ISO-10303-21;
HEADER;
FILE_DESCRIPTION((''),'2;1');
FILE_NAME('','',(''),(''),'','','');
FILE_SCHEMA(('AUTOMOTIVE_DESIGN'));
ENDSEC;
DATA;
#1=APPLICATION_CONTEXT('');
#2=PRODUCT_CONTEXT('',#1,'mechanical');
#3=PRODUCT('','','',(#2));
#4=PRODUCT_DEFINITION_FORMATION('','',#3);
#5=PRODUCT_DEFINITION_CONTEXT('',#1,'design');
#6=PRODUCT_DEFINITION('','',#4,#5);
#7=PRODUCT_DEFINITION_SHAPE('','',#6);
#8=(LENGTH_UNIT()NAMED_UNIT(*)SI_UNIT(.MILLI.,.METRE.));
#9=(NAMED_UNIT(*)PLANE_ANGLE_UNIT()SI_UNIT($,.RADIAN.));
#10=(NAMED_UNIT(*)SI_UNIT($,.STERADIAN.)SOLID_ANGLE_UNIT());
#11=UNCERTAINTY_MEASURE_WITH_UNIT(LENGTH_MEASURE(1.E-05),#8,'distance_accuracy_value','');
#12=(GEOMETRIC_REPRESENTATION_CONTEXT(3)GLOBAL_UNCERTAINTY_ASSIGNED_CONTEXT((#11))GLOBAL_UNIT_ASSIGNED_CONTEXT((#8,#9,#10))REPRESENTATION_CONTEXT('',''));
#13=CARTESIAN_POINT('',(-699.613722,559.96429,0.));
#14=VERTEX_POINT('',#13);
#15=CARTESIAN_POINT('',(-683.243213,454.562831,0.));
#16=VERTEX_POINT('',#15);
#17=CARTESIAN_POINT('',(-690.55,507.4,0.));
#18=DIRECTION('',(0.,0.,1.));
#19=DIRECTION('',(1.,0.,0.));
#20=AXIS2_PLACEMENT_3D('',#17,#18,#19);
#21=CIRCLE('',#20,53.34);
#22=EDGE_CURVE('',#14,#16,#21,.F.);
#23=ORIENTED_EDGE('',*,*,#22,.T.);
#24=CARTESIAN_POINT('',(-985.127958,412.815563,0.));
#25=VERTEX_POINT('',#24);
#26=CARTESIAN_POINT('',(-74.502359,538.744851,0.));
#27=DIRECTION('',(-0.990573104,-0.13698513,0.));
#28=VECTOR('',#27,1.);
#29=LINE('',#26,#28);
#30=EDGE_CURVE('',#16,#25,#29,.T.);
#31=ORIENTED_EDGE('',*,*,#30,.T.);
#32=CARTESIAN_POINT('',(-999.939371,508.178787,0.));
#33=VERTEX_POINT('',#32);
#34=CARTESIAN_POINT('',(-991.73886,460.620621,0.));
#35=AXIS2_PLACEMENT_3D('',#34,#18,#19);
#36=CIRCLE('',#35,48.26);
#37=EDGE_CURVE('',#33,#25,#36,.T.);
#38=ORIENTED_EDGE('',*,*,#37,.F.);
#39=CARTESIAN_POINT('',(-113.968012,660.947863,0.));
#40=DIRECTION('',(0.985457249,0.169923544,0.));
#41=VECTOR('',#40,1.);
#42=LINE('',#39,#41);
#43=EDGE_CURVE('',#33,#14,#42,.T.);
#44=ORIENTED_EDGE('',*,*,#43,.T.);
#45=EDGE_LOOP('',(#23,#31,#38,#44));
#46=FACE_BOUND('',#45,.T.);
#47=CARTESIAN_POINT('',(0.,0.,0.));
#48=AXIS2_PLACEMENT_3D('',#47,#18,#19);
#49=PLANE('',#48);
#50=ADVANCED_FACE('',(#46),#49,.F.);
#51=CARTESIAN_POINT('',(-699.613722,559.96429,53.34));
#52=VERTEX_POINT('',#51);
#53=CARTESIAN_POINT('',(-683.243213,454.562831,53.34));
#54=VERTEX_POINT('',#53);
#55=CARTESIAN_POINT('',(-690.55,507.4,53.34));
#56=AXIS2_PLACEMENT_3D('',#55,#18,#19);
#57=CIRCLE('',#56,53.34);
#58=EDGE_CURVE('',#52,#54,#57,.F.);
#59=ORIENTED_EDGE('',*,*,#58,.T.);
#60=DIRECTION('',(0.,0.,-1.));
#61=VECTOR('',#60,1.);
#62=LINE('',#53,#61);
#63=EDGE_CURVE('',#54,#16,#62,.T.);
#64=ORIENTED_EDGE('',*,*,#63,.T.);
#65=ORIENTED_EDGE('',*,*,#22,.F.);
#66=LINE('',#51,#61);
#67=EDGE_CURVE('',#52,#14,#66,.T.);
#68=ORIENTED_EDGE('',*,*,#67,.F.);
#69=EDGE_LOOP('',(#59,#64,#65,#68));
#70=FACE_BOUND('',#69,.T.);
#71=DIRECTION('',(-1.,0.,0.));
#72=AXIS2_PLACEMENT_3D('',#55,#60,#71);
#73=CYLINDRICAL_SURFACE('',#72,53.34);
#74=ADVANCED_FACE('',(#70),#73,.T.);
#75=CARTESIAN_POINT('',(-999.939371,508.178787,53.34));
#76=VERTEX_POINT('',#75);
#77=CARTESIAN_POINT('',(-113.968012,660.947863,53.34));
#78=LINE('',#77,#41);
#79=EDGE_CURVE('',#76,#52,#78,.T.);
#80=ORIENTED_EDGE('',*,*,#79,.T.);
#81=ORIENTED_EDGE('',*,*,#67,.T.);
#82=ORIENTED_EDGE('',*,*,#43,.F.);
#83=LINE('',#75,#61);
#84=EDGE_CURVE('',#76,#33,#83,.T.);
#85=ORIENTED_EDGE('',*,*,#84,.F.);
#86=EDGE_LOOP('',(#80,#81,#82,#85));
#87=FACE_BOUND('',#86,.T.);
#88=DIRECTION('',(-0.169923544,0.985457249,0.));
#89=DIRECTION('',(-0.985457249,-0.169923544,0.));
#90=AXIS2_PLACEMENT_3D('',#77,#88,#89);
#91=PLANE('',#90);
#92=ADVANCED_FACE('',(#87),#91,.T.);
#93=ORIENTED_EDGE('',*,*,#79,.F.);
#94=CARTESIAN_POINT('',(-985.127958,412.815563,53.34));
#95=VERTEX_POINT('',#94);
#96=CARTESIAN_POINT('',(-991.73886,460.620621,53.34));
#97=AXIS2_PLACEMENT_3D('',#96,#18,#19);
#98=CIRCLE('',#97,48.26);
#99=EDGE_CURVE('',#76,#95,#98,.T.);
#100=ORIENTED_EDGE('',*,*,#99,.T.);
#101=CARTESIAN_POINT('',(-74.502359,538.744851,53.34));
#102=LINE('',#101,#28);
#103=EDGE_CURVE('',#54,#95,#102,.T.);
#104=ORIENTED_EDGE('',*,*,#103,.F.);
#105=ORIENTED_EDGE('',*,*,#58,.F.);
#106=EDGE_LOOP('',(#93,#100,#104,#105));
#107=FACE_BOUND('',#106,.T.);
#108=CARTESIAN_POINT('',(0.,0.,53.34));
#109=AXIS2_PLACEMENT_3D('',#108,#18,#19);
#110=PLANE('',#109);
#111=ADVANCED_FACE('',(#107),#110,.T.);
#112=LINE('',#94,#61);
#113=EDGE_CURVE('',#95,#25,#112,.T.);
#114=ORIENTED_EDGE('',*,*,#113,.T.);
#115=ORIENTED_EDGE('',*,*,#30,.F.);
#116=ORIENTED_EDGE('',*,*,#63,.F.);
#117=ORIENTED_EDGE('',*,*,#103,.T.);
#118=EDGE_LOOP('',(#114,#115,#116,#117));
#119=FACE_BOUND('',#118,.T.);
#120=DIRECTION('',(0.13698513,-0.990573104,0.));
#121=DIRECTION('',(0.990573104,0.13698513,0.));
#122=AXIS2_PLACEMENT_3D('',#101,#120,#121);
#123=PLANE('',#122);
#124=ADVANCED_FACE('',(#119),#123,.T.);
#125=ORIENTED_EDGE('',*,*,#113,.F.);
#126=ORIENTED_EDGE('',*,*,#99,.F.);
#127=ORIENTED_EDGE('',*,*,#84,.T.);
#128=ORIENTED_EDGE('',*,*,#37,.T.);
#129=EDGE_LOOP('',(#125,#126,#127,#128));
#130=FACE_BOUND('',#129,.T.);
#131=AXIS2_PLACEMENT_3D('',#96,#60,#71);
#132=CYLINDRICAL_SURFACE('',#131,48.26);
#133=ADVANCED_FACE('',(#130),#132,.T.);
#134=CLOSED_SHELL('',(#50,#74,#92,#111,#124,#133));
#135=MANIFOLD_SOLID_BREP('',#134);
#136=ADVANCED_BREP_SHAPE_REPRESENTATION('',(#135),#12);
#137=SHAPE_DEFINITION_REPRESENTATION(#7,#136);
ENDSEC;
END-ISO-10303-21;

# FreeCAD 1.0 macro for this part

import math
import FreeCAD as App
import Part
import Sketcher
from FreeCAD import Vector
Q = App.Units.Quantity

doc = App.newDocument("Part")
params = doc.addObject("Spreadsheet::Sheet", "Params")
for row, (alias, value) in enumerate([
    ("sketch1_radius", "1.9 in"),
    ("sketch1_radius2", "2.1 in"),
    ("pad1_length", "2.1 in"),
], start=1):
    params.set(f"A{row}", alias)
    params.set(f"B{row}", "=" + value)
    params.setAlias(f"B{row}", alias)

body = doc.addObject("PartDesign::Body", "Body")

sketch1 = body.newObject("Sketcher::SketchObject", "Sketch")
sketch1.AttachmentSupport = (doc.getObject("XY_Plane"), [""])
sketch1.MapMode = "FlatFace"
sketch1.addGeometry(Part.LineSegment(Vector(-699.613722, 559.96429, 0), Vector(-999.939371, 508.178787, 0)), False)
sketch1.addGeometry(Part.ArcOfCircle(Part.Circle(Vector(-991.73886, 460.620621, 0), Vector(0, 0, 1), 48.26), math.radians(99.783374), math.radians(277.873426)), False)
sketch1.addGeometry(Part.LineSegment(Vector(-985.127958, 412.815563, 0), Vector(-683.243213, 454.562831, 0)), False)
sketch1.addGeometry(Part.ArcOfCircle(Part.Circle(Vector(-690.55, 507.4, 0), Vector(0, 0, 1), 53.34), math.radians(-82.126574), math.radians(99.783374)), False)
sketch1.addConstraint(Sketcher.Constraint("Tangent", 0, 2, 1, 1))
sketch1.addConstraint(Sketcher.Constraint("Tangent", 1, 2, 2, 1))
sketch1.addConstraint(Sketcher.Constraint("Tangent", 2, 2, 3, 1))
sketch1.addConstraint(Sketcher.Constraint("Tangent", 3, 2, 0, 1))
sketch1.addConstraint(Sketcher.Constraint("Radius", 1, Q("1.9 in")))
sketch1.addConstraint(Sketcher.Constraint("Radius", 3, Q("2.1 in")))
sketch1.addConstraint(Sketcher.Constraint("DistanceX", 3, 3, -1, 1, Q("690.55 mm")))
sketch1.addConstraint(Sketcher.Constraint("DistanceY", -1, 1, 3, 3, Q("507.4 mm")))
sketch1.addConstraint(Sketcher.Constraint("DistanceX", 1, 3, -1, 1, Q("991.73886 mm")))
sketch1.addConstraint(Sketcher.Constraint("DistanceY", -1, 1, 1, 3, Q("460.620621 mm")))
sketch1.setExpression("Constraints[4]", "Params.sketch1_radius")
sketch1.setExpression("Constraints[5]", "Params.sketch1_radius2")
pad1 = body.newObject("PartDesign::Pad", "Pad")
pad1.Profile = sketch1
pad1.setExpression("Length", "Params.pad1_length")

doc.recompute()
